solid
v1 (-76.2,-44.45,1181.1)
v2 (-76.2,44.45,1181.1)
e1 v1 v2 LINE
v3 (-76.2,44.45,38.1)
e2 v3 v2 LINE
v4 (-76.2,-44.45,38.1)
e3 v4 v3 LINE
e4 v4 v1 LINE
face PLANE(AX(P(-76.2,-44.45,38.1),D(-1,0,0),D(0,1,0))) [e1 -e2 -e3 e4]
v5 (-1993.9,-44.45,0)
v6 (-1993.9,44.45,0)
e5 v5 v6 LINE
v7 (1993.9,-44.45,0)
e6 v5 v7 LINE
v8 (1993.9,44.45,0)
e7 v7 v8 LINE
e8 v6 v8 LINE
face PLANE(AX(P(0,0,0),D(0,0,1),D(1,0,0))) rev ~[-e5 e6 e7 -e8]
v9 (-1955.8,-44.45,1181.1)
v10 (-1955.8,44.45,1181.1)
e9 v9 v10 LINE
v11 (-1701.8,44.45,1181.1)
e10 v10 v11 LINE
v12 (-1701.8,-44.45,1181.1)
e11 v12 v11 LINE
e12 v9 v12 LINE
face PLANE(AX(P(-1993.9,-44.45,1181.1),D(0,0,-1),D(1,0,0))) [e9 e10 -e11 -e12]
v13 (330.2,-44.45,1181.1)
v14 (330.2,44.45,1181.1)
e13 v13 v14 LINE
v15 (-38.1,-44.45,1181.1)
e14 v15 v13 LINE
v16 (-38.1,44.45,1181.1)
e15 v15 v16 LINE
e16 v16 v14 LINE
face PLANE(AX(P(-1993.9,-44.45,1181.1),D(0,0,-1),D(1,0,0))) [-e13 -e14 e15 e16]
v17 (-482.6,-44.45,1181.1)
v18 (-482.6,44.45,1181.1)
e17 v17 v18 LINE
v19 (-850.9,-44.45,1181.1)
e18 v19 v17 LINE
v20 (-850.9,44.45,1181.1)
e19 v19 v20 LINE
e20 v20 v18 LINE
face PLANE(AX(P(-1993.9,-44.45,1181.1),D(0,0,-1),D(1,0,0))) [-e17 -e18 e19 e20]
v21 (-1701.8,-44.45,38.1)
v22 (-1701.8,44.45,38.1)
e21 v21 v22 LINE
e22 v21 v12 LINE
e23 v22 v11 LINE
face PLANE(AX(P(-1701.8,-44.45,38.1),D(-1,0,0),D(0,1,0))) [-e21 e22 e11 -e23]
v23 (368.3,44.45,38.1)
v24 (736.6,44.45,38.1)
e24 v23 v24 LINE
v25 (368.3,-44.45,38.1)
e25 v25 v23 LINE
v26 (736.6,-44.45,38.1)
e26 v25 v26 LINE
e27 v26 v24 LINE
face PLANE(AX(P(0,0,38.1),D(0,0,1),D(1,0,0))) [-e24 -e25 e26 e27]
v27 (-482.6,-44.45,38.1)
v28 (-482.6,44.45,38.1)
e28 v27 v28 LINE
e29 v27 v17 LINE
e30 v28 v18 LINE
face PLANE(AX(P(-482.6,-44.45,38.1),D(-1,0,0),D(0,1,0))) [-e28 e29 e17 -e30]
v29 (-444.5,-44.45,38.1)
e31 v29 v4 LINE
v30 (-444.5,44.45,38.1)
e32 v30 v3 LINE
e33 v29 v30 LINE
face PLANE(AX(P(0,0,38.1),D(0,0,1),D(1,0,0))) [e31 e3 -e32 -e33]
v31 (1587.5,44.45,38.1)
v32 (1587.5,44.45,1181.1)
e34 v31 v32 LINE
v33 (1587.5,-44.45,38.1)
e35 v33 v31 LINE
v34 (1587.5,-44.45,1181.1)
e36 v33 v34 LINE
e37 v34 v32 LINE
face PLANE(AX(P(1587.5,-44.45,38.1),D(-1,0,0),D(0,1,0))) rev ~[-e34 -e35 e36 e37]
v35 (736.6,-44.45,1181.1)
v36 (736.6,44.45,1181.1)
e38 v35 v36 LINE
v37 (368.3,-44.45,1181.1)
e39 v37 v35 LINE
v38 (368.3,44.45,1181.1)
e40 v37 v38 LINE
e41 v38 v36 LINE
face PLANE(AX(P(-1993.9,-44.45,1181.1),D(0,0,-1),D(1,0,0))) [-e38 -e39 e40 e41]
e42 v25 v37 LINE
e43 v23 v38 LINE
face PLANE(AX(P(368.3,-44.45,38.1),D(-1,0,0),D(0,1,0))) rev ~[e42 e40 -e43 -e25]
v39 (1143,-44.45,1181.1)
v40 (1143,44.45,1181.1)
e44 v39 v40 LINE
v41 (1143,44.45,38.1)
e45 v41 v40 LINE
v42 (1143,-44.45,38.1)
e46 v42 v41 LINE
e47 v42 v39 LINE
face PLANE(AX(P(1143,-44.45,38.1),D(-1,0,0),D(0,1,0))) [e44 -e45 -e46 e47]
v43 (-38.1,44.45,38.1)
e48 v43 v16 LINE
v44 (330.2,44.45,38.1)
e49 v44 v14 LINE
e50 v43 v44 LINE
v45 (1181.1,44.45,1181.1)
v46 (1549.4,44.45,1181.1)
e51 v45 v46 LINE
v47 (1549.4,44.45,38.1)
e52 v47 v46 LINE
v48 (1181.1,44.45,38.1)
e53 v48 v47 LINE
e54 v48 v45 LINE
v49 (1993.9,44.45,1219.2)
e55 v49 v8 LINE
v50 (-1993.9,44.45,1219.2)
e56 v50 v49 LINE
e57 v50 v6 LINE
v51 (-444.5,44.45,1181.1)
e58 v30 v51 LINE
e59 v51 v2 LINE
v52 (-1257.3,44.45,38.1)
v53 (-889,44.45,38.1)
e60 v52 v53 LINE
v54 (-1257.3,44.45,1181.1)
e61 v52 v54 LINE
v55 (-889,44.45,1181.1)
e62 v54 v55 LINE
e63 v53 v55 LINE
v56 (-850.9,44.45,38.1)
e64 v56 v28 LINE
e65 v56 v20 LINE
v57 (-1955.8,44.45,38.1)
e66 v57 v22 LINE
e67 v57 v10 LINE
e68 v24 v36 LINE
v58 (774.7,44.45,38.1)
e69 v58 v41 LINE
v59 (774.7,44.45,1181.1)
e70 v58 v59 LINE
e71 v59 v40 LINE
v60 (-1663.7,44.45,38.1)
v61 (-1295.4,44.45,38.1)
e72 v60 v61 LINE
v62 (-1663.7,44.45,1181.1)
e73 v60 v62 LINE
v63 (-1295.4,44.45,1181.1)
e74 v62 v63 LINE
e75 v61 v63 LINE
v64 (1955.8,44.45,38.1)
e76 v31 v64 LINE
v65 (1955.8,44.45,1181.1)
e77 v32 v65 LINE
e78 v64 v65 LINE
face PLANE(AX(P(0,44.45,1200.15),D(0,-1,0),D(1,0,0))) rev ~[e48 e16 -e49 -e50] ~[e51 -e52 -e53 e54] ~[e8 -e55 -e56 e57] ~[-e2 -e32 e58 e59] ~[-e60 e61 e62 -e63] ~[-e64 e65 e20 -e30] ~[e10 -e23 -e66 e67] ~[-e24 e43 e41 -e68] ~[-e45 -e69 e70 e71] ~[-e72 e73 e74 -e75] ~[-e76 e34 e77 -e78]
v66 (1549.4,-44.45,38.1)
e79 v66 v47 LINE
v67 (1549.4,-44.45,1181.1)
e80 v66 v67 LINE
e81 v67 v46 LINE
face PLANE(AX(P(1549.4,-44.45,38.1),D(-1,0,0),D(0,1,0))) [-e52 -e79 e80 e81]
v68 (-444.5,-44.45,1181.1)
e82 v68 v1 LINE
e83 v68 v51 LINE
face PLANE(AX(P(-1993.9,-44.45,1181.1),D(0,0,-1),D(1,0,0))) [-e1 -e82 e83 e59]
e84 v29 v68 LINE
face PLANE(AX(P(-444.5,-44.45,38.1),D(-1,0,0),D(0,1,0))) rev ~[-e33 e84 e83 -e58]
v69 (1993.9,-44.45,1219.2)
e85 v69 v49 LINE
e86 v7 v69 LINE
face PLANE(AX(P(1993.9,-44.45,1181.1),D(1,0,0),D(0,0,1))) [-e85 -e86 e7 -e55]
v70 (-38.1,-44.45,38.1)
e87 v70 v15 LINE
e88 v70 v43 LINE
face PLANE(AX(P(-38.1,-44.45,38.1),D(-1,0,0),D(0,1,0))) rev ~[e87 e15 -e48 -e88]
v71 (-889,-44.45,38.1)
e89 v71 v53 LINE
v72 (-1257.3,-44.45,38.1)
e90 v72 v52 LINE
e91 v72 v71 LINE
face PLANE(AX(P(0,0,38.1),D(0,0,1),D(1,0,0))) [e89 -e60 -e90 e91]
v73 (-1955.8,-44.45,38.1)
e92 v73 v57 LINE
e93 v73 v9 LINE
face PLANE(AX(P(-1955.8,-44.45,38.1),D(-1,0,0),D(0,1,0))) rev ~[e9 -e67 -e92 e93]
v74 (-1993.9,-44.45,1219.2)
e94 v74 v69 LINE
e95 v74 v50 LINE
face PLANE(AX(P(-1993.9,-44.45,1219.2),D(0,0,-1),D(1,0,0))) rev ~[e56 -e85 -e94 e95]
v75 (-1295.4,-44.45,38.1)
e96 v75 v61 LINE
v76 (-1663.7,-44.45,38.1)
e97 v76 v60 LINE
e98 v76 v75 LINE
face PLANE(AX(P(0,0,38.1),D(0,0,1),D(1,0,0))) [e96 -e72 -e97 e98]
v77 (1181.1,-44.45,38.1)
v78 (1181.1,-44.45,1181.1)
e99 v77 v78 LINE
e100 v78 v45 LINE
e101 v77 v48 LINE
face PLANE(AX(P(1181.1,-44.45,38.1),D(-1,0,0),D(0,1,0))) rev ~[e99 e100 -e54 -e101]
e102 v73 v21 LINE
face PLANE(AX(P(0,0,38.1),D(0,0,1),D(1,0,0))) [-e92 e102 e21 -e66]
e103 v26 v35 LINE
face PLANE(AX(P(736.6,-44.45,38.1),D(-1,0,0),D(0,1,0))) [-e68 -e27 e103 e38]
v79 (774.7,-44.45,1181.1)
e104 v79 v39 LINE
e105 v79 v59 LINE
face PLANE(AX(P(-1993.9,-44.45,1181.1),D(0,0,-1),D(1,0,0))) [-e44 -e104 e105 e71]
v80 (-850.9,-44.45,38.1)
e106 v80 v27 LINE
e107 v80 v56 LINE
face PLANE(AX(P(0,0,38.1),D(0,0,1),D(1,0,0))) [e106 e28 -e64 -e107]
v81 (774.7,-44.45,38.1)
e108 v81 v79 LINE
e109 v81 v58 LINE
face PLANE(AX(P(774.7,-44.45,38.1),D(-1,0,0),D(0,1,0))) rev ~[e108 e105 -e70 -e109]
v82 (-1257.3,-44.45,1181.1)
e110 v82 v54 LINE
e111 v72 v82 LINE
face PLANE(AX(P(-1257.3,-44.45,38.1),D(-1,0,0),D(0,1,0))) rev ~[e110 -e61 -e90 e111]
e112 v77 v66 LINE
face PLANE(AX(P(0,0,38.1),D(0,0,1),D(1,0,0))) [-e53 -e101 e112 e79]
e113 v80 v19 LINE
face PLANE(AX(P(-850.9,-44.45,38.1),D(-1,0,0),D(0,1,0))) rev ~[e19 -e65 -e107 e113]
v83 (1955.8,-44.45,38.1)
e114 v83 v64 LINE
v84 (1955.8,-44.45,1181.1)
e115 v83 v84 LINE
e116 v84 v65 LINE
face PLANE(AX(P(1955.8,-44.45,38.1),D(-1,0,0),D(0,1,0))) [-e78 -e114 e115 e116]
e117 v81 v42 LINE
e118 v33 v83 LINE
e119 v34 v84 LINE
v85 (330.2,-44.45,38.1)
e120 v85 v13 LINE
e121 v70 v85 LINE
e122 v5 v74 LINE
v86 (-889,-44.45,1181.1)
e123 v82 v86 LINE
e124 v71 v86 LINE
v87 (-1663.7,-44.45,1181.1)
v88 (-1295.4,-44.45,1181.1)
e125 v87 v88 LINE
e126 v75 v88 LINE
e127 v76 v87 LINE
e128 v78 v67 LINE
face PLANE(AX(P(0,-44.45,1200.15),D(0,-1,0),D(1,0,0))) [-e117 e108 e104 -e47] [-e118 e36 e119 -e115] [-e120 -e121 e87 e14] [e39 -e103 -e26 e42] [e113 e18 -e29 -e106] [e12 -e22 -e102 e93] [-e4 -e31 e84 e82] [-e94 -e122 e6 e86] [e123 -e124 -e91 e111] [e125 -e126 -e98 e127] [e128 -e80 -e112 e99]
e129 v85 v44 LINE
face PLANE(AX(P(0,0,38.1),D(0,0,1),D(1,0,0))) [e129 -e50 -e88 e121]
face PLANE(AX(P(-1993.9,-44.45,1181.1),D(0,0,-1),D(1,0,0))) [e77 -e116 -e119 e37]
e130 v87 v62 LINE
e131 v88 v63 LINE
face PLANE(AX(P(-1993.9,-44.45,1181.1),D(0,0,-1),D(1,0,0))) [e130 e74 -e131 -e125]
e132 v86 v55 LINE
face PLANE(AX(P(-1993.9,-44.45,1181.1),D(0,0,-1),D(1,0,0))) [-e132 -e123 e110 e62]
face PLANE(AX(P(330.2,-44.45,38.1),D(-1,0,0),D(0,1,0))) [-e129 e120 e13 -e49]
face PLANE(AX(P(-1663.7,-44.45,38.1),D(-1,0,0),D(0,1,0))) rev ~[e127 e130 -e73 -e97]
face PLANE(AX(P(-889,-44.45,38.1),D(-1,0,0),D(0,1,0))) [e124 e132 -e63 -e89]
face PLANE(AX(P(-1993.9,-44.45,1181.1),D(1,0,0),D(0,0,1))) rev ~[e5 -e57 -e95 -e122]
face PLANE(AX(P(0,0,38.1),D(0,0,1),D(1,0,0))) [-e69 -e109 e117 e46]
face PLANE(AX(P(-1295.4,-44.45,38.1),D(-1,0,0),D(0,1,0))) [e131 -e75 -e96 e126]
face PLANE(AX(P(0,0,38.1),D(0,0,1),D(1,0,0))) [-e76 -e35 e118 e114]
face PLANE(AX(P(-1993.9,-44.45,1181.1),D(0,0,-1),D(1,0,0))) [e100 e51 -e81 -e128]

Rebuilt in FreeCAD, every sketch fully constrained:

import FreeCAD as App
import Part
import Sketcher
from FreeCAD import Vector
Q = App.Units.Quantity


def add_polygon(sketch, points):
    """Adds a closed chain of lines whose ends are joined by coincident constraints."""
    first, n = sketch.GeometryCount, len(points)
    for a, b in zip(points, points[1:] + points[:1]):
        sketch.addGeometry(Part.LineSegment(App.Vector(*a, 0), App.Vector(*b, 0)), False)
    for i in range(n):
        sketch.addConstraint(Sketcher.Constraint("Coincident", first + i, 2, first + (i + 1) % n, 1))

doc = App.newDocument("Part")
body = doc.addObject("PartDesign::Body", "Body")

# Sketch on XY plane
sketch1 = doc.addObject("Sketcher::SketchObject", "Sketch")
body.addObject(sketch1)
sketch1.AttachmentSupport = (doc.XY_Plane, [""])
sketch1.MapMode = "FlatFace"
add_polygon(sketch1, [(-1993.9, 44.45), (-1993.9, -44.45), (1993.9, -44.45), (1993.9, 44.45)])  # lines 0-3
sketch1.addConstraint([
    Sketcher.Constraint("Vertical", 0),
    Sketcher.Constraint("Horizontal", 1),
    Sketcher.Constraint("Vertical", 2),
    Sketcher.Constraint("Horizontal", 3),
    Sketcher.Constraint("Symmetric", 0, 2, 2, 2, -1, 1),
    Sketcher.Constraint("DistanceX", 1, 1, 1, 2, Q("157 in")),
    Sketcher.Constraint("DistanceY", 0, 2, 0, 1, Q("3.5 in")),
])
pad1 = doc.addObject("PartDesign::Pad", "Pad")
body.addObject(pad1)
pad1.Profile = sketch1
pad1.Length = Q("1.5 in")

# Sketch on XY plane
sketch2 = doc.addObject("Sketcher::SketchObject", "Sketch001")
body.addObject(sketch2)
sketch2.AttachmentSupport = (doc.XY_Plane, [""])
sketch2.MapMode = "FlatFace"
sketch2.AttachmentOffset = App.Placement(Vector(0, 0, 1.5 * 25.4), App.Rotation())
add_polygon(sketch2, [(1955.8, 44.45), (1955.8, -44.45), (1993.9, -44.45), (1993.9, 44.45)])  # lines 0-3
add_polygon(sketch2, [(1549.4, 44.45), (1549.4, -44.45), (1587.5, -44.45), (1587.5, 44.45)])  # lines 4-7
add_polygon(sketch2, [(1143, 44.45), (1143, -44.45), (1181.1, -44.45), (1181.1, 44.45)])  # lines 8-11
add_polygon(sketch2, [(736.6, 44.45), (736.6, -44.45), (774.7, -44.45), (774.7, 44.45)])  # lines 12-15
add_polygon(sketch2, [(330.2, 44.45), (330.2, -44.45), (368.3, -44.45), (368.3, 44.45)])  # lines 16-19
add_polygon(sketch2, [(-76.2, 44.45), (-76.2, -44.45), (-38.1, -44.45), (-38.1, 44.45)])  # lines 20-23
add_polygon(sketch2, [(-482.6, 44.45), (-482.6, -44.45), (-444.5, -44.45), (-444.5, 44.45)])  # lines 24-27
add_polygon(sketch2, [(-889, 44.45), (-889, -44.45), (-850.9, -44.45), (-850.9, 44.45)])  # lines 28-31
add_polygon(sketch2, [(-1295.4, 44.45), (-1295.4, -44.45), (-1257.3, -44.45), (-1257.3, 44.45)])  # lines 32-35
add_polygon(sketch2, [(-1993.9, 44.45), (-1993.9, -44.45), (-1955.8, -44.45), (-1955.8, 44.45)])  # lines 36-39
add_polygon(sketch2, [(-1701.8, 44.45), (-1701.8, -44.45), (-1663.7, -44.45), (-1663.7, 44.45)])  # lines 40-43
sketch2.addConstraint([
    Sketcher.Constraint("Vertical", 0),
    Sketcher.Constraint("Horizontal", 1),
    Sketcher.Constraint("Vertical", 2),
    Sketcher.Constraint("Horizontal", 3),
    Sketcher.Constraint("Vertical", 4),
    Sketcher.Constraint("Horizontal", 5),
    Sketcher.Constraint("Vertical", 6),
    Sketcher.Constraint("Horizontal", 7),
    Sketcher.Constraint("Vertical", 8),
    Sketcher.Constraint("Horizontal", 9),
    Sketcher.Constraint("Vertical", 10),
    Sketcher.Constraint("Horizontal", 11),
    Sketcher.Constraint("Vertical", 12),
    Sketcher.Constraint("Horizontal", 13),
    Sketcher.Constraint("Vertical", 14),
    Sketcher.Constraint("Horizontal", 15),
    Sketcher.Constraint("Vertical", 16),
    Sketcher.Constraint("Horizontal", 17),
    Sketcher.Constraint("Vertical", 18),
    Sketcher.Constraint("Horizontal", 19),
    Sketcher.Constraint("Vertical", 20),
    Sketcher.Constraint("Horizontal", 21),
    Sketcher.Constraint("Vertical", 22),
    Sketcher.Constraint("Horizontal", 23),
    Sketcher.Constraint("Vertical", 24),
    Sketcher.Constraint("Horizontal", 25),
    Sketcher.Constraint("Vertical", 26),
    Sketcher.Constraint("Horizontal", 27),
    Sketcher.Constraint("Vertical", 28),
    Sketcher.Constraint("Horizontal", 29),
    Sketcher.Constraint("Vertical", 30),
    Sketcher.Constraint("Horizontal", 31),
    Sketcher.Constraint("Vertical", 32),
    Sketcher.Constraint("Horizontal", 33),
    Sketcher.Constraint("Vertical", 34),
    Sketcher.Constraint("Horizontal", 35),
    Sketcher.Constraint("Vertical", 36),
    Sketcher.Constraint("Horizontal", 37),
    Sketcher.Constraint("Vertical", 38),
    Sketcher.Constraint("Horizontal", 39),
    Sketcher.Constraint("Vertical", 40),
    Sketcher.Constraint("Horizontal", 41),
    Sketcher.Constraint("Vertical", 42),
    Sketcher.Constraint("Horizontal", 43),
    Sketcher.Constraint("Symmetric", 2, 2, 36, 2, -1, 1),
    Sketcher.Constraint("Symmetric", 0, 2, 38, 2, -1, 1),
    Sketcher.Constraint("Horizontal", 1, 2, 4, 2),
    Sketcher.Constraint("Horizontal", 3, 2, 6, 2),
    Sketcher.Constraint("Horizontal", 5, 2, 8, 2),
    Sketcher.Constraint("Horizontal", 7, 2, 10, 2),
    Sketcher.Constraint("Horizontal", 9, 2, 12, 2),
    Sketcher.Constraint("Horizontal", 11, 2, 14, 2),
    Sketcher.Constraint("Horizontal", 13, 2, 16, 2),
    Sketcher.Constraint("Horizontal", 15, 2, 18, 2),
    Sketcher.Constraint("Horizontal", 17, 2, 20, 2),
    Sketcher.Constraint("Horizontal", 19, 2, 22, 2),
    Sketcher.Constraint("Horizontal", 21, 2, 24, 2),
    Sketcher.Constraint("Horizontal", 23, 2, 26, 2),
    Sketcher.Constraint("Horizontal", 25, 2, 28, 2),
    Sketcher.Constraint("Horizontal", 27, 2, 30, 2),
    Sketcher.Constraint("Horizontal", 29, 2, 32, 2),
    Sketcher.Constraint("Horizontal", 31, 2, 34, 2),
    Sketcher.Constraint("Horizontal", 33, 2, 36, 2),
    Sketcher.Constraint("Horizontal", 37, 2, 40, 2),
    Sketcher.Constraint("Horizontal", 39, 2, 42, 2),
    Sketcher.Constraint("Equal", 3, 5),
    Sketcher.Constraint("Equal", 7, 9),
    Sketcher.Constraint("Equal", 11, 13),
    Sketcher.Constraint("Equal", 15, 17),
    Sketcher.Constraint("Equal", 19, 21),
    Sketcher.Constraint("Equal", 23, 25),
    Sketcher.Constraint("Equal", 27, 29),
    Sketcher.Constraint("Equal", 31, 33),
    Sketcher.Constraint("Equal", 39, 41),
    Sketcher.Constraint("DistanceX", 1, 1, 1, 2, Q("1.5 in")),
    Sketcher.Constraint("DistanceY", 0, 2, 0, 1, Q("3.5 in")),
    Sketcher.Constraint("DistanceX", -1, 1, 0, 2, Q("77 in")),
    Sketcher.Constraint("DistanceX", -1, 1, 4, 2, Q("61 in")),
    Sketcher.Constraint("DistanceX", -1, 1, 8, 2, Q("45 in")),
    Sketcher.Constraint("DistanceX", -1, 1, 12, 2, Q("29 in")),
    Sketcher.Constraint("DistanceX", -1, 1, 16, 2, Q("13 in")),
    Sketcher.Constraint("DistanceX", 20, 2, -1, 1, Q("3 in")),
    Sketcher.Constraint("DistanceX", 24, 2, -1, 1, Q("19 in")),
    Sketcher.Constraint("DistanceX", 28, 2, -1, 1, Q("35 in")),
    Sketcher.Constraint("DistanceX", 32, 2, -1, 1, Q("51 in")),
    Sketcher.Constraint("DistanceX", 40, 2, -1, 1, Q("67 in")),
])
pad2 = doc.addObject("PartDesign::Pad", "Pad001")
body.addObject(pad2)
pad2.Profile = sketch2
pad2.Length = Q("45 in")

# Sketch on XZ plane
sketch3 = doc.addObject("Sketcher::SketchObject", "Sketch002")
body.addObject(sketch3)
sketch3.AttachmentSupport = (doc.XZ_Plane, [""])
sketch3.MapMode = "FlatFace"
sketch3.AttachmentOffset = App.Placement(Vector(0, 0, 1.75 * 25.4), App.Rotation())
add_polygon(sketch3, [(-1993.9, 1219.2), (-1993.9, 1181.1), (1993.9, 1181.1), (1993.9, 1219.2)])  # lines 0-3
sketch3.addConstraint([
    Sketcher.Constraint("Vertical", 0),
    Sketcher.Constraint("Horizontal", 1),
    Sketcher.Constraint("Vertical", 2),
    Sketcher.Constraint("Horizontal", 3),
    Sketcher.Constraint("DistanceX", 1, 1, 1, 2, Q("157 in")),
    Sketcher.Constraint("DistanceY", 0, 2, 0, 1, Q("1.5 in")),
    Sketcher.Constraint("DistanceY", -1, 1, 2, 2, Q("48 in")),
    Sketcher.Constraint("DistanceX", 0, 2, -1, 1, Q("78.5 in")),
])
pad3 = doc.addObject("PartDesign::Pad", "Pad002")
body.addObject(pad3)
pad3.Profile = sketch3
pad3.Length = Q("3.5 in")
pad3.Reversed = True

doc.recompute()
